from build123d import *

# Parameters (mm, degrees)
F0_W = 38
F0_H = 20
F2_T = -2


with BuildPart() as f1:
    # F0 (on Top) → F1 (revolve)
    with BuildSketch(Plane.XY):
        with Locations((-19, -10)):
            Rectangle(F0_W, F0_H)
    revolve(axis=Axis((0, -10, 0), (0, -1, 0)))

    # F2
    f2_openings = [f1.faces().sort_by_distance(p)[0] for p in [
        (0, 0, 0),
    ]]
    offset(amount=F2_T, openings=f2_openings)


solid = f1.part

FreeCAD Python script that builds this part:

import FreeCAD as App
import Part
import Sketcher
from FreeCAD import Vector


def faces_at(feature, points):
    """Names of the faces that lie closest to the given points."""
    faces = feature.Shape.Faces
    near = lambda p: min(range(len(faces)), key=lambda i: faces[i].distToShape(Part.Vertex(*p))[0])
    return sorted({f"Face{near(p) + 1}" for p in points})


def add_polygon(sketch, points):
    """Adds a closed chain of lines whose ends are joined by coincident constraints."""
    first, n = sketch.GeometryCount, len(points)
    for a, b in zip(points, points[1:] + points[:1]):
        sketch.addGeometry(Part.LineSegment(App.Vector(*a, 0), App.Vector(*b, 0)), False)
    for i in range(n):
        sketch.addConstraint(Sketcher.Constraint("Coincident", first + i, 2, first + (i + 1) % n, 1))

doc = App.newDocument("Part")
body = doc.addObject("PartDesign::Body", "Body")

# Sketch on XY plane
sketch1 = doc.addObject("Sketcher::SketchObject", "Sketch")
body.addObject(sketch1)
sketch1.AttachmentSupport = (doc.XY_Plane, [""])
sketch1.MapMode = "FlatFace"
add_polygon(sketch1, [(-38, 0), (-38, -20), (0, -20), (0, 0)])  # lines 0-3
sketch1.addConstraint(Sketcher.Constraint("Vertical", 0))
sketch1.addConstraint(Sketcher.Constraint("Horizontal", 1))
sketch1.addConstraint(Sketcher.Constraint("Vertical", 2))
sketch1.addConstraint(Sketcher.Constraint("Horizontal", 3))
sketch1.addConstraint(Sketcher.Constraint("Coincident", 2, 2, -1, 1))
sketch1.addConstraint(Sketcher.Constraint("DistanceX", 1, 1, 1, 2, 38.0))
sketch1.addConstraint(Sketcher.Constraint("DistanceY", 0, 2, 0, 1, 20.0))
revolution = doc.addObject("PartDesign::Revolution", "Revolution")
body.addObject(revolution)
revolution.Profile = sketch1
revolution.ReferenceAxis = (sketch1, ["V_Axis"])
revolution.Angle = 360
doc.recompute()

thickness = doc.addObject("PartDesign::Thickness", "Thickness")
body.addObject(thickness)
thickness.Base = (revolution, faces_at(revolution, [(0, 0, 0)]))
thickness.Value = 2
thickness.Reversed = True
thickness.Join = "Arc"

doc.recompute()
